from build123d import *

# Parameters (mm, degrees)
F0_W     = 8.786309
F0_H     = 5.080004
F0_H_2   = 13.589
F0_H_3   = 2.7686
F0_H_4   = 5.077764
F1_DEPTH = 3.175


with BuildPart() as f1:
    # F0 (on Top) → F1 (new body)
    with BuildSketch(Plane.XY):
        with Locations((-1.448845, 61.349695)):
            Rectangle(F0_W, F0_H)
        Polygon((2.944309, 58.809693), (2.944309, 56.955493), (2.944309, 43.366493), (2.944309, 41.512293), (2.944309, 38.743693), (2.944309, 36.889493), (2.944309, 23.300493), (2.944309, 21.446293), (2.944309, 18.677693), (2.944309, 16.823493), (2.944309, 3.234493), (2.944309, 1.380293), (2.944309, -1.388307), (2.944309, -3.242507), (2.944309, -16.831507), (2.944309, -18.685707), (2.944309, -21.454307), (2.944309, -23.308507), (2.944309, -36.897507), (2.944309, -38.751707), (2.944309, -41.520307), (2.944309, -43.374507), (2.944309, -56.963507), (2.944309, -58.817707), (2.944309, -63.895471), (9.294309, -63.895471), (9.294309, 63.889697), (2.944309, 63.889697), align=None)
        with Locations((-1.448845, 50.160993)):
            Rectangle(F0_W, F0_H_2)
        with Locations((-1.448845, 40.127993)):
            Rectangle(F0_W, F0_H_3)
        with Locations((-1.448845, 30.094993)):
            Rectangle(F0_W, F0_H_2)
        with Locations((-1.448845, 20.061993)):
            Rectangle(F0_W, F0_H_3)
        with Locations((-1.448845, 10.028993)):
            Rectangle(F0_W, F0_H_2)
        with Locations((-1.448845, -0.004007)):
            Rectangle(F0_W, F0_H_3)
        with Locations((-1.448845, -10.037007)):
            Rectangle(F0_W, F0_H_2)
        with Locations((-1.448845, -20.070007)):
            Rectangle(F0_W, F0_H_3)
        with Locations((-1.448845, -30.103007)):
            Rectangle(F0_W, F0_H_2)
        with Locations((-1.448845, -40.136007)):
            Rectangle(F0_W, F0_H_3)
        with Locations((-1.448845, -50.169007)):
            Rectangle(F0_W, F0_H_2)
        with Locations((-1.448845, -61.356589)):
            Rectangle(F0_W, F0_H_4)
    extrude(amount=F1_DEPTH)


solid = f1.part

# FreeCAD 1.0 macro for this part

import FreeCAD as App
import Part
import Sketcher
Q = App.Units.Quantity


def add_polygon(sketch, points):
    """Adds a closed chain of lines whose ends are joined by coincident constraints."""
    first, n = sketch.GeometryCount, len(points)
    for a, b in zip(points, points[1:] + points[:1]):
        sketch.addGeometry(Part.LineSegment(App.Vector(*a, 0), App.Vector(*b, 0)), False)
    for i in range(n):
        sketch.addConstraint(Sketcher.Constraint("Coincident", first + i, 2, first + (i + 1) % n, 1))

doc = App.newDocument("Part")
body = doc.addObject("PartDesign::Body", "Body")

sketch1 = body.newObject("Sketcher::SketchObject", "Sketch")
sketch1.AttachmentSupport = (doc.getObject("XY_Plane"), [""])
sketch1.MapMode = "FlatFace"
add_polygon(sketch1, [(-5.8, 63.9), (-5.8, 58.8), (2.9, 58.8), (2.9, 57), (-5.8, 57), (-5.8, 43.4), (2.9, 43.4), (2.9, 41.5), (-5.8, 41.5), (-5.8, 38.7), (2.9, 38.7), (2.9, 36.9), (-5.8, 36.9), (-5.8, 23.3), (2.9, 23.3), (2.9, 21.4), (-5.8, 21.4), (-5.8, 18.7), (2.9, 18.7), (2.9, 16.8), (-5.8, 16.8), (-5.8, 3.2), (2.9, 3.2), (2.9, 1.4), (-5.8, 1.4), (-5.8, -1.4), (2.9, -1.4), (2.9, -3.2), (-5.8, -3.2), (-5.8, -16.8), (2.9, -16.8), (2.9, -18.7), (-5.8, -18.7), (-5.8, -21.5), (2.9, -21.5), (2.9, -23.3), (-5.8, -23.3), (-5.8, -36.9), (2.9, -36.9), (2.9, -38.8), (-5.8, -38.8), (-5.8, -41.5), (2.9, -41.5), (2.9, -43.4), (-5.8, -43.4), (-5.8, -57), (2.9, -57), (2.9, -58.8), (-5.8, -58.8), (-5.8, -63.9), (9.3, -63.9), (9.3, 63.9)])
sketch1.addConstraint(Sketcher.Constraint("Vertical", 0))
sketch1.addConstraint(Sketcher.Constraint("Horizontal", 1))
sketch1.addConstraint(Sketcher.Constraint("Vertical", 2))
sketch1.addConstraint(Sketcher.Constraint("Horizontal", 3))
sketch1.addConstraint(Sketcher.Constraint("Vertical", 4))
sketch1.addConstraint(Sketcher.Constraint("Horizontal", 5))
sketch1.addConstraint(Sketcher.Constraint("Vertical", 6))
sketch1.addConstraint(Sketcher.Constraint("Horizontal", 7))
sketch1.addConstraint(Sketcher.Constraint("Vertical", 8))
sketch1.addConstraint(Sketcher.Constraint("Horizontal", 9))
sketch1.addConstraint(Sketcher.Constraint("Vertical", 10))
sketch1.addConstraint(Sketcher.Constraint("Horizontal", 11))
sketch1.addConstraint(Sketcher.Constraint("Vertical", 12))
sketch1.addConstraint(Sketcher.Constraint("Horizontal", 13))
sketch1.addConstraint(Sketcher.Constraint("Vertical", 14))
sketch1.addConstraint(Sketcher.Constraint("Horizontal", 15))
sketch1.addConstraint(Sketcher.Constraint("Vertical", 16))
sketch1.addConstraint(Sketcher.Constraint("Horizontal", 17))
sketch1.addConstraint(Sketcher.Constraint("Vertical", 18))
sketch1.addConstraint(Sketcher.Constraint("Horizontal", 19))
sketch1.addConstraint(Sketcher.Constraint("Vertical", 20))
sketch1.addConstraint(Sketcher.Constraint("Horizontal", 21))
sketch1.addConstraint(Sketcher.Constraint("Vertical", 22))
sketch1.addConstraint(Sketcher.Constraint("Horizontal", 23))
sketch1.addConstraint(Sketcher.Constraint("Vertical", 24))
sketch1.addConstraint(Sketcher.Constraint("Horizontal", 25))
sketch1.addConstraint(Sketcher.Constraint("Vertical", 26))
sketch1.addConstraint(Sketcher.Constraint("Horizontal", 27))
sketch1.addConstraint(Sketcher.Constraint("Vertical", 28))
sketch1.addConstraint(Sketcher.Constraint("Horizontal", 29))
sketch1.addConstraint(Sketcher.Constraint("Vertical", 30))
sketch1.addConstraint(Sketcher.Constraint("Horizontal", 31))
sketch1.addConstraint(Sketcher.Constraint("Vertical", 32))
sketch1.addConstraint(Sketcher.Constraint("Horizontal", 33))
sketch1.addConstraint(Sketcher.Constraint("Vertical", 34))
sketch1.addConstraint(Sketcher.Constraint("Horizontal", 35))
sketch1.addConstraint(Sketcher.Constraint("Vertical", 36))
sketch1.addConstraint(Sketcher.Constraint("Horizontal", 37))
sketch1.addConstraint(Sketcher.Constraint("Vertical", 38))
sketch1.addConstraint(Sketcher.Constraint("Horizontal", 39))
sketch1.addConstraint(Sketcher.Constraint("Vertical", 40))
sketch1.addConstraint(Sketcher.Constraint("Horizontal", 41))
sketch1.addConstraint(Sketcher.Constraint("Vertical", 42))
sketch1.addConstraint(Sketcher.Constraint("Horizontal", 43))
sketch1.addConstraint(Sketcher.Constraint("Vertical", 44))
sketch1.addConstraint(Sketcher.Constraint("Horizontal", 45))
sketch1.addConstraint(Sketcher.Constraint("Vertical", 46))
sketch1.addConstraint(Sketcher.Constraint("Horizontal", 47))
sketch1.addConstraint(Sketcher.Constraint("Vertical", 48))
sketch1.addConstraint(Sketcher.Constraint("Horizontal", 49))
sketch1.addConstraint(Sketcher.Constraint("Vertical", 50))
sketch1.addConstraint(Sketcher.Constraint("Horizontal", 51))
sketch1.addConstraint(Sketcher.Constraint("Vertical", 0, 2, 3, 2))
sketch1.addConstraint(Sketcher.Constraint("Vertical", 2, 2, 5, 2))
sketch1.addConstraint(Sketcher.Constraint("Vertical", 4, 2, 7, 2))
sketch1.addConstraint(Sketcher.Constraint("Vertical", 6, 2, 9, 2))
sketch1.addConstraint(Sketcher.Constraint("Vertical", 8, 2, 11, 2))
sketch1.addConstraint(Sketcher.Constraint("Vertical", 10, 2, 13, 2))
sketch1.addConstraint(Sketcher.Constraint("Vertical", 12, 2, 15, 2))
sketch1.addConstraint(Sketcher.Constraint("Vertical", 14, 2, 17, 2))
sketch1.addConstraint(Sketcher.Constraint("Vertical", 16, 2, 19, 2))
sketch1.addConstraint(Sketcher.Constraint("Vertical", 18, 2, 21, 2))
sketch1.addConstraint(Sketcher.Constraint("Vertical", 20, 2, 23, 2))
sketch1.addConstraint(Sketcher.Constraint("Vertical", 22, 2, 25, 2))
sketch1.addConstraint(Sketcher.Constraint("Vertical", 24, 2, 27, 2))
sketch1.addConstraint(Sketcher.Constraint("Vertical", 26, 2, 29, 2))
sketch1.addConstraint(Sketcher.Constraint("Vertical", 28, 2, 31, 2))
sketch1.addConstraint(Sketcher.Constraint("Vertical", 30, 2, 33, 2))
sketch1.addConstraint(Sketcher.Constraint("Vertical", 32, 2, 35, 2))
sketch1.addConstraint(Sketcher.Constraint("Vertical", 34, 2, 37, 2))
sketch1.addConstraint(Sketcher.Constraint("Vertical", 36, 2, 39, 2))
sketch1.addConstraint(Sketcher.Constraint("Vertical", 38, 2, 41, 2))
sketch1.addConstraint(Sketcher.Constraint("Vertical", 40, 2, 43, 2))
sketch1.addConstraint(Sketcher.Constraint("Vertical", 42, 2, 45, 2))
sketch1.addConstraint(Sketcher.Constraint("Vertical", 44, 2, 47, 2))
sketch1.addConstraint(Sketcher.Constraint("Equal", 2, 6))
sketch1.addConstraint(Sketcher.Constraint("Equal", 6, 10))
sketch1.addConstraint(Sketcher.Constraint("Equal", 4, 12))
sketch1.addConstraint(Sketcher.Constraint("Equal", 10, 14))
sketch1.addConstraint(Sketcher.Constraint("Equal", 8, 16))
sketch1.addConstraint(Sketcher.Constraint("Equal", 14, 18))
sketch1.addConstraint(Sketcher.Constraint("Equal", 12, 20))
sketch1.addConstraint(Sketcher.Constraint("Equal", 18, 22))
sketch1.addConstraint(Sketcher.Constraint("Equal", 16, 24))
sketch1.addConstraint(Sketcher.Constraint("Equal", 22, 26))
sketch1.addConstraint(Sketcher.Constraint("Equal", 20, 28))
sketch1.addConstraint(Sketcher.Constraint("Equal", 26, 30))
sketch1.addConstraint(Sketcher.Constraint("Equal", 24, 32))
sketch1.addConstraint(Sketcher.Constraint("Equal", 30, 34))
sketch1.addConstraint(Sketcher.Constraint("Equal", 28, 36))
sketch1.addConstraint(Sketcher.Constraint("Equal", 34, 38))
sketch1.addConstraint(Sketcher.Constraint("Equal", 32, 40))
sketch1.addConstraint(Sketcher.Constraint("Equal", 38, 42))
sketch1.addConstraint(Sketcher.Constraint("Equal", 36, 44))
sketch1.addConstraint(Sketcher.Constraint("Equal", 42, 46))
sketch1.addConstraint(Sketcher.Constraint("DistanceY", 0, 2, 0, 1, Q("0.2000002 in")))
sketch1.addConstraint(Sketcher.Constraint("DistanceY", 2, 2, 2, 1, Q("0.073 in")))
sketch1.addConstraint(Sketcher.Constraint("DistanceY", 4, 2, 4, 1, Q("0.535 in")))
sketch1.addConstraint(Sketcher.Constraint("DistanceY", 8, 2, 8, 1, Q("0.109 in")))
sketch1.addConstraint(Sketcher.Constraint("DistanceX", 0, 2, -1, 1, Q("0.23 in")))
sketch1.addConstraint(Sketcher.Constraint("DistanceX", 46, 2, 49, 2, Q("0.25 in")))
sketch1.addConstraint(Sketcher.Constraint("DistanceX", 1, 1, 1, 2, 8.786309))
sketch1.addConstraint(Sketcher.Constraint("DistanceY", 50, 1, 50, 2, 127.785168))
sketch1.addConstraint(Sketcher.Constraint("DistanceY", 48, 2, -1, 1, 63.895471))
pad1 = body.newObject("PartDesign::Pad", "Pad")
pad1.Profile = sketch1
pad1.Length = Q("0.125 in")

doc.recompute()
